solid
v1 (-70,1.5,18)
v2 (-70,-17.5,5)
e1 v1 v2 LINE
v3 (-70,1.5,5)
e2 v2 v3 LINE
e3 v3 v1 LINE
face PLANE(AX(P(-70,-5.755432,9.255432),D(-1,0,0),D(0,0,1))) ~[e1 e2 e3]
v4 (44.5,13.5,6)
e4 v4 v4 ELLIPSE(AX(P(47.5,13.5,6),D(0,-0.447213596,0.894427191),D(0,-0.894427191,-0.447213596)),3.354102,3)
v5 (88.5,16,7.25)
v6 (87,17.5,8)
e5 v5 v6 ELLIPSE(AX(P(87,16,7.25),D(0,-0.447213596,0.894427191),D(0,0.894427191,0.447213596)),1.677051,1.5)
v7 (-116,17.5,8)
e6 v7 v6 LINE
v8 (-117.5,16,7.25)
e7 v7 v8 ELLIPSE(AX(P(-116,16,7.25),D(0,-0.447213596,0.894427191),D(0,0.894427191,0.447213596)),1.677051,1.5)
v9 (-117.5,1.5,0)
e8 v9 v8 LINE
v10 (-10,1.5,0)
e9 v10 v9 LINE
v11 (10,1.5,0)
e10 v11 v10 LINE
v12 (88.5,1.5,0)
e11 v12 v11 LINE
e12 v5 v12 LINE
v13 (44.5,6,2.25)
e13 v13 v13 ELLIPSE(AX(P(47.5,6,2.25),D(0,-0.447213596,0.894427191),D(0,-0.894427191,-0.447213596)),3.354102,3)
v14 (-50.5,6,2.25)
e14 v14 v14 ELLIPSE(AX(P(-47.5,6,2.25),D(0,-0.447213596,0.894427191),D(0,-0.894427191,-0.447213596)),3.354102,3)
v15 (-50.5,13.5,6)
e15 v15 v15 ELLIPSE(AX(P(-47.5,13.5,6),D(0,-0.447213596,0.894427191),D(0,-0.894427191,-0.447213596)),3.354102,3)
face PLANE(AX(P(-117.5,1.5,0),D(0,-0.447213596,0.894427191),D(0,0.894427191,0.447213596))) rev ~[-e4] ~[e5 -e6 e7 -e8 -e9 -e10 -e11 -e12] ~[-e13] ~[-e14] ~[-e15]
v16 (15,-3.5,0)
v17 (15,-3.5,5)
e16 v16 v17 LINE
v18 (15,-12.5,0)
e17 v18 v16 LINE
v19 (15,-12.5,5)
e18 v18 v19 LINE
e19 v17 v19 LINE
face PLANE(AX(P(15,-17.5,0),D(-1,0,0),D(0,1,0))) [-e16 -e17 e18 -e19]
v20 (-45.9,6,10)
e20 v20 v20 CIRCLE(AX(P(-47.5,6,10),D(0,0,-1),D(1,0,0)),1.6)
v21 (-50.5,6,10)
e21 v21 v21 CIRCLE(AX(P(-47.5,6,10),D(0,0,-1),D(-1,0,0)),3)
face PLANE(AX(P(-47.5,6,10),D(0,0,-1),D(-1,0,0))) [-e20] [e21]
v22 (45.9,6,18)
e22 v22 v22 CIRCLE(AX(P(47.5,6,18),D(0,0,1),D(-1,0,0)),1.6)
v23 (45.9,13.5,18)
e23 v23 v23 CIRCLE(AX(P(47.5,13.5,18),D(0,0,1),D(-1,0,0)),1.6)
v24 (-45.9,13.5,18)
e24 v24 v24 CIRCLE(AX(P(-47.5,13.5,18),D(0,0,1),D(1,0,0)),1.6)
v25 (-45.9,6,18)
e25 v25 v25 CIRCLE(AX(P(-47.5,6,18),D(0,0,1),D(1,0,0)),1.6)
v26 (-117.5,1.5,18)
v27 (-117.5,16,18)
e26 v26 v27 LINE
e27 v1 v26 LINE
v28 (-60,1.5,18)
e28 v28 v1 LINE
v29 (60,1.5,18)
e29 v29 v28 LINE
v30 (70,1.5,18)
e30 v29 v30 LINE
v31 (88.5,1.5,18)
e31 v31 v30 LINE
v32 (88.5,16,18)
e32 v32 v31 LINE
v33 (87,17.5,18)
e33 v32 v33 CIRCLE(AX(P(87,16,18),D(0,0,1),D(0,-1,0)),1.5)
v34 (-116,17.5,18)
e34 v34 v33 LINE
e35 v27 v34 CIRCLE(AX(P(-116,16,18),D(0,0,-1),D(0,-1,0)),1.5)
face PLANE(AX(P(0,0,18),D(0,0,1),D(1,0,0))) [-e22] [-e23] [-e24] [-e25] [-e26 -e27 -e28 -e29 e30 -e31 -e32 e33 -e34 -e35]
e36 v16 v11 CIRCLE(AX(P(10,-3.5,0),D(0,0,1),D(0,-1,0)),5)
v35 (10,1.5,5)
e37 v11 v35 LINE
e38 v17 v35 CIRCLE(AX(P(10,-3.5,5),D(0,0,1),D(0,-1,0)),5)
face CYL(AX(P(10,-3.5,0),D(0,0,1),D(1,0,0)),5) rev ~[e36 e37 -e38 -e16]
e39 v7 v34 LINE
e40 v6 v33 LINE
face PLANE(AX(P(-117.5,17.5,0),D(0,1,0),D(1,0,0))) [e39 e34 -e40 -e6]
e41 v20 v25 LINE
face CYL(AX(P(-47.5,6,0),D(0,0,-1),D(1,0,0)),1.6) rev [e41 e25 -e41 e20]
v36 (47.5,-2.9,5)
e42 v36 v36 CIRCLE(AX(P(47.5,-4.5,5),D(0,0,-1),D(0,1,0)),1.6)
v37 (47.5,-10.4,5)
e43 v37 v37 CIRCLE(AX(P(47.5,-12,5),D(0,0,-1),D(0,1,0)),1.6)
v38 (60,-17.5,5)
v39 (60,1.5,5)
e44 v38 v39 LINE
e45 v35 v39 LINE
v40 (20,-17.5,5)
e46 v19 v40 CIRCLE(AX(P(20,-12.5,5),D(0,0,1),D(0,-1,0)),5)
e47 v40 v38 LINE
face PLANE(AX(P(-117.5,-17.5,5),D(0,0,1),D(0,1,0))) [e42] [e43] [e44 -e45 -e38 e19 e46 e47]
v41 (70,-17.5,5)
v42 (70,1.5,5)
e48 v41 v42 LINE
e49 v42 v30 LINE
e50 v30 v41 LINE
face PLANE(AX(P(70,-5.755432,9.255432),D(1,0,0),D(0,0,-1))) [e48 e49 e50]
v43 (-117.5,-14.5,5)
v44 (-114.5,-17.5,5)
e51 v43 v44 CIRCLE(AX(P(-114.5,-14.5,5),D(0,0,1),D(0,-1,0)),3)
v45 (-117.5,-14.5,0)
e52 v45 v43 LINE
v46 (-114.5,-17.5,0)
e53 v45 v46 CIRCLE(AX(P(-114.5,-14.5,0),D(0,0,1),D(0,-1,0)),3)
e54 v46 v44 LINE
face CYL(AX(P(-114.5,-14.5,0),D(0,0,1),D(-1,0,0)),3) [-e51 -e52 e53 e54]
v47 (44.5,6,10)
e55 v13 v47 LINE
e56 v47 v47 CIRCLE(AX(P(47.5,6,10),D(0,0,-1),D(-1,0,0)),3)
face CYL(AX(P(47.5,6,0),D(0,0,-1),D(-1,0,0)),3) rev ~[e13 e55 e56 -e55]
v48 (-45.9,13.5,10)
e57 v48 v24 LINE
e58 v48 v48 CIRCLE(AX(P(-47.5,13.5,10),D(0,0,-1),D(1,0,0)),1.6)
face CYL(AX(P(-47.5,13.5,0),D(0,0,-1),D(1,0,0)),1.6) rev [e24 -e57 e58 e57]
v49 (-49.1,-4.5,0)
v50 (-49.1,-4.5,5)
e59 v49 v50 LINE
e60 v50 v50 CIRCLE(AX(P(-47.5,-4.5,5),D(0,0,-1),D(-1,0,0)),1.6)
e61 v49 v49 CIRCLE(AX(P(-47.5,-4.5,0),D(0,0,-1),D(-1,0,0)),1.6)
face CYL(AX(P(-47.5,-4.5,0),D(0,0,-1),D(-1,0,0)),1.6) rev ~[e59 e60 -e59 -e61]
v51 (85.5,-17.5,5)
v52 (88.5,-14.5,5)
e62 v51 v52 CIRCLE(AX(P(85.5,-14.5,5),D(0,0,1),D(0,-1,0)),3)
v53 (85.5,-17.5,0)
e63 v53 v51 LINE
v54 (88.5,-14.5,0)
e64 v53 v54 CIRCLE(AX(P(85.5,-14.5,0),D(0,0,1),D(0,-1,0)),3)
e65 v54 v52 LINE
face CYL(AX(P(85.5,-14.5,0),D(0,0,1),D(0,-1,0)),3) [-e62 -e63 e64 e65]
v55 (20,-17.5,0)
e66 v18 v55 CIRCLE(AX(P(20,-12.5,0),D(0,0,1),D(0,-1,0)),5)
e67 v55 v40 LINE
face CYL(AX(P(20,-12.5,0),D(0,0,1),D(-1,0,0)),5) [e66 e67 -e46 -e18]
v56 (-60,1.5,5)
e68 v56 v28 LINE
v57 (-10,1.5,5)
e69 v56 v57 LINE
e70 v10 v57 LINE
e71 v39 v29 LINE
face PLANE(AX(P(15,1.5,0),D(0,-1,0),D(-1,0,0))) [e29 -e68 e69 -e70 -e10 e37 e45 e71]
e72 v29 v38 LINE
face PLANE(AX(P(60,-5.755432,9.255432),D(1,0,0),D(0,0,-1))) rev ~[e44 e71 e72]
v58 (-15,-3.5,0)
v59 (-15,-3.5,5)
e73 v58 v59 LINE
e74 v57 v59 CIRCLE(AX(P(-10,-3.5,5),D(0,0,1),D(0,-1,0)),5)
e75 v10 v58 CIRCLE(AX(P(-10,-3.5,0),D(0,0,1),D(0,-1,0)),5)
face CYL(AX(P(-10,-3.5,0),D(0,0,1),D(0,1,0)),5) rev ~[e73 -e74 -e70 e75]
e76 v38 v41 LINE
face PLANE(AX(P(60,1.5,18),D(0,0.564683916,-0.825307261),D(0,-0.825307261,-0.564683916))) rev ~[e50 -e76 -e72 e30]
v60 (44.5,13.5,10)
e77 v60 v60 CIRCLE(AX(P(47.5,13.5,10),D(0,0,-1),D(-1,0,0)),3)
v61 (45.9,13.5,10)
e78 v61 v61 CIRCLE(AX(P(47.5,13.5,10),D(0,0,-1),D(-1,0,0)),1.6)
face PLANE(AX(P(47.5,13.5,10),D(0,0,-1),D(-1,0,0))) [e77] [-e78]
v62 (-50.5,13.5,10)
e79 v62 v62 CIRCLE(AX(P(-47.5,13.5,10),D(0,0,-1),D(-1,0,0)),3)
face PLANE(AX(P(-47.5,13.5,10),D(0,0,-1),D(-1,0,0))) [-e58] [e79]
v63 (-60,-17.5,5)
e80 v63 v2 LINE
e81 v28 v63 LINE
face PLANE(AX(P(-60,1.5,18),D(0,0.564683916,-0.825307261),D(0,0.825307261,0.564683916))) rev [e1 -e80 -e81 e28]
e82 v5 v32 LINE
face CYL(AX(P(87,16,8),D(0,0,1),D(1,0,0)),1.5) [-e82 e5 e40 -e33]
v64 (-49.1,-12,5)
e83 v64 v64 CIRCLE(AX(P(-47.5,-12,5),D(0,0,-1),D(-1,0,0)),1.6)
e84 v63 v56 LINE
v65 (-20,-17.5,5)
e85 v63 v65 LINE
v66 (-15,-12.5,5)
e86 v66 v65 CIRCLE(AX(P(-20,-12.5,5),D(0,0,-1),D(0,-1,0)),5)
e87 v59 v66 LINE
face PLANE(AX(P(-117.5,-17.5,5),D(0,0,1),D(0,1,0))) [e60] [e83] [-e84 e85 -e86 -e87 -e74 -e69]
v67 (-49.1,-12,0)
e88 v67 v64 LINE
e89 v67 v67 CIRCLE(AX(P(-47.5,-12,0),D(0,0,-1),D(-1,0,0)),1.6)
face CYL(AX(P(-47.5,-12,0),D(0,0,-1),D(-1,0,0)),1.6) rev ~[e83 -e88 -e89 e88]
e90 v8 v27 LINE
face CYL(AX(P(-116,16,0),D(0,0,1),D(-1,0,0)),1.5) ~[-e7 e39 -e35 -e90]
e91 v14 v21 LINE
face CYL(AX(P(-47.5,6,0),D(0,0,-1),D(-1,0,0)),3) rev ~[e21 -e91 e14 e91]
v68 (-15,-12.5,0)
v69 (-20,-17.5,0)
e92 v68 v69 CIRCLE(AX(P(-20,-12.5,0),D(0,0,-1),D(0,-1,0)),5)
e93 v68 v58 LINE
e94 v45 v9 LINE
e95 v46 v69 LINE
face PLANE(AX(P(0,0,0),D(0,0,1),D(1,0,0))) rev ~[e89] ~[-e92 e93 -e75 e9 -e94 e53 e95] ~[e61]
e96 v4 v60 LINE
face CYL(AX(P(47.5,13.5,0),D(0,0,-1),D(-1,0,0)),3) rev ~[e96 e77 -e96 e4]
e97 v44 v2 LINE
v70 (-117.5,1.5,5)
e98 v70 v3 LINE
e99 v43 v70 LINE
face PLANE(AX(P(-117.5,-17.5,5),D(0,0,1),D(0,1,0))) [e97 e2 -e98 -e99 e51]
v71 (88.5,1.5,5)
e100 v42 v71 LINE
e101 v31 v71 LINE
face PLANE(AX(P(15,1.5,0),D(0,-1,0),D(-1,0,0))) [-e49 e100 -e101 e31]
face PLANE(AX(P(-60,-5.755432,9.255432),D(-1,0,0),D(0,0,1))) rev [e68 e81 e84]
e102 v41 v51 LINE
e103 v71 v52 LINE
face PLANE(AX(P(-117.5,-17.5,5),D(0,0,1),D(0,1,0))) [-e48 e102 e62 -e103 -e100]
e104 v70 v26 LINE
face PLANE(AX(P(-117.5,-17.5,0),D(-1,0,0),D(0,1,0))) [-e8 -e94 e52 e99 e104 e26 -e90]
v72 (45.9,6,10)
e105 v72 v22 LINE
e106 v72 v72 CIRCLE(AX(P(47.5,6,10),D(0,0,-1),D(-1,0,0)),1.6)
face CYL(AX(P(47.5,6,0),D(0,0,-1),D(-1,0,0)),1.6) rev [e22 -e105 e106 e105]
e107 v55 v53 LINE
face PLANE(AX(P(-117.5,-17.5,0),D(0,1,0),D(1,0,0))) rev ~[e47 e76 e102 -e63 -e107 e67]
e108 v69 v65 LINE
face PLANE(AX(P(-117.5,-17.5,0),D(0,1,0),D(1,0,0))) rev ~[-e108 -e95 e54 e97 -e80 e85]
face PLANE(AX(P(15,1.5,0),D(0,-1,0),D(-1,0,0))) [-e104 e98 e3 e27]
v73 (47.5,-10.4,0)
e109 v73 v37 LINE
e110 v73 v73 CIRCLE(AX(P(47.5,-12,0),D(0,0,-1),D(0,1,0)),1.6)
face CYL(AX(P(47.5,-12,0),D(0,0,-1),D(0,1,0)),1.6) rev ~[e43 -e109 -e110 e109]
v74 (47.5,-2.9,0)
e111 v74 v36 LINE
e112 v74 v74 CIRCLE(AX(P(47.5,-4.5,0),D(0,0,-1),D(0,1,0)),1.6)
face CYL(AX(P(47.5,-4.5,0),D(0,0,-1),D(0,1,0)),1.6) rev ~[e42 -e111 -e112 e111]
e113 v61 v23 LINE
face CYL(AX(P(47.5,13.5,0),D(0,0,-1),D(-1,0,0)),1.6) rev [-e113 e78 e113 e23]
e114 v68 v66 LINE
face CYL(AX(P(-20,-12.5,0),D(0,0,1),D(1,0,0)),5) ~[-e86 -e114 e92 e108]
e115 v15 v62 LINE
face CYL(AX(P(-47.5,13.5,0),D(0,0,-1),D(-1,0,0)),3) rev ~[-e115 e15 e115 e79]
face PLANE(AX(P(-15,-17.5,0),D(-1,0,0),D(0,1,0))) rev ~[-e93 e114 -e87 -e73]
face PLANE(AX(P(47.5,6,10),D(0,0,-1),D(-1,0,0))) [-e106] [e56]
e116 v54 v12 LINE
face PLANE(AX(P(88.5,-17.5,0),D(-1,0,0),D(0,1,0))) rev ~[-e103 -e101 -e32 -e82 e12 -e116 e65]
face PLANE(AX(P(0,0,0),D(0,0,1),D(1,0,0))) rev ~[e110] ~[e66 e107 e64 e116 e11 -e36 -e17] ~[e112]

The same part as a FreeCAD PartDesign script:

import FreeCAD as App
import Part
import Sketcher


def edges_at(feature, points):
    """Names of the edges that pass closest to the given points."""
    edges = feature.Shape.Edges
    near = lambda p: min(range(len(edges)), key=lambda i: edges[i].distToShape(Part.Vertex(*p))[0])
    return sorted({f"Edge{near(p) + 1}" for p in points})


def add_polygon(sketch, points):
    """Adds a closed chain of lines whose ends are joined by coincident constraints."""
    first, n = sketch.GeometryCount, len(points)
    for a, b in zip(points, points[1:] + points[:1]):
        sketch.addGeometry(Part.LineSegment(App.Vector(*a, 0), App.Vector(*b, 0)), False)
    for i in range(n):
        sketch.addConstraint(Sketcher.Constraint("Coincident", first + i, 2, first + (i + 1) % n, 1))

doc = App.newDocument("Part")
body = doc.addObject("PartDesign::Body", "Body")

# Sketch on XY plane
sketch1 = body.newObject("Sketcher::SketchObject", "Sketch")
sketch1.AttachmentSupport = (doc.getObject("XY_Plane"), [""])
sketch1.MapMode = "FlatFace"
add_polygon(sketch1, [(-117.5, 17.5), (-117.5, -17.5), (117.5, -17.5), (117.5, 17.5)])  # lines 0-3
sketch1.addGeometry(Part.Circle(App.Vector(-47.5, 6, 0), App.Vector(0, 0, 1), 1.6), False)  # 4
sketch1.addGeometry(Part.Circle(App.Vector(47.5, 6, 0), App.Vector(0, 0, 1), 1.6), False)  # 5
sketch1.addGeometry(Part.Circle(App.Vector(-47.5, 13.5, 0), App.Vector(0, 0, 1), 1.6), False)  # 6
sketch1.addGeometry(Part.Circle(App.Vector(47.5, 13.5, 0), App.Vector(0, 0, 1), 1.6), False)  # 7
sketch1.addConstraint([
    Sketcher.Constraint("Vertical", 0),
    Sketcher.Constraint("Horizontal", 1),
    Sketcher.Constraint("Vertical", 2),
    Sketcher.Constraint("Horizontal", 3),
    Sketcher.Constraint("Equal", 4, 5),
    Sketcher.Constraint("Equal", 5, 6),
    Sketcher.Constraint("Equal", 6, 7),
    Sketcher.Constraint("Symmetric", 0, 2, 2, 2, -1, 1),
    Sketcher.Constraint("Symmetric", 4, 3, 5, 3, -2),
    Sketcher.Constraint("Symmetric", 6, 3, 7, 3, -2),
    Sketcher.Constraint("Vertical", 4, 3, 6, 3),
    Sketcher.Constraint("Diameter", 4, 3.2),
    Sketcher.Constraint("DistanceX", 1, 1, 1, 2, 235.0),
    Sketcher.Constraint("DistanceY", 0, 2, 0, 1, 35.0),
    Sketcher.Constraint("DistanceY", -1, 1, 4, 3, 6.0),
    Sketcher.Constraint("DistanceX", 4, 3, 5, 3, 95.0),
    Sketcher.Constraint("DistanceY", 0, 2, 6, 3, 31.0),
])
pad1 = body.newObject("PartDesign::Pad", "Pad")
pad1.Profile = sketch1
pad1.Length = 18
doc.recompute()

fillet = body.newObject("PartDesign::Fillet", "Fillet")
fillet.Base = (pad1, edges_at(pad1, [(-117.5, 17.5, 9), (117.5, 17.5, 9)]))
fillet.Radius = 1.5

# Sketch on YZ plane
sketch2 = body.newObject("Sketcher::SketchObject", "Sketch001")
sketch2.AttachmentSupport = (doc.getObject("YZ_Plane"), [""])
sketch2.MapMode = "FlatFace"
sketch2.AttachmentOffset = App.Placement(App.Vector(0, 0, -117.5), App.Rotation())
add_polygon(sketch2, [(1.5, 0), (17.5, 8), (17.5, 0)])  # lines 0-2
sketch2.addConstraint([
    Sketcher.Constraint("Vertical", 1),
    Sketcher.Constraint("Horizontal", 2),
    Sketcher.Constraint("PointOnObject", 1, 2, -1),
    Sketcher.Constraint("DistanceX", 2, 2, 2, 1, 16.0),
    Sketcher.Constraint("DistanceY", 1, 2, 1, 1, 8.0),
    Sketcher.Constraint("DistanceX", -1, 1, 0, 2, 17.5),
])
pocket1 = body.newObject("PartDesign::Pocket", "Pocket")
pocket1.Profile = sketch2
pocket1.Type = "ThroughAll"
pocket1.Reversed = True

# Sketch on YZ plane
sketch3 = body.newObject("Sketcher::SketchObject", "Sketch002")
sketch3.AttachmentSupport = (doc.getObject("YZ_Plane"), [""])
sketch3.MapMode = "FlatFace"
sketch3.AttachmentOffset = App.Placement(App.Vector(0, 0, -117.5), App.Rotation())
add_polygon(sketch3, [(1.5, 5), (-17.5, 5), (-17.5, 18), (1.5, 18)])  # lines 0-3
sketch3.addConstraint([
    Sketcher.Constraint("Horizontal", 0),
    Sketcher.Constraint("Vertical", 1),
    Sketcher.Constraint("Horizontal", 2),
    Sketcher.Constraint("Vertical", 3),
    Sketcher.Constraint("DistanceX", 0, 2, 0, 1, 19.0),
    Sketcher.Constraint("DistanceY", 1, 1, 1, 2, 13.0),
    Sketcher.Constraint("DistanceY", -1, 1, 0, 2, 5.0),
    Sketcher.Constraint("DistanceX", 0, 2, -1, 1, 17.5),
])
pocket2 = body.newObject("PartDesign::Pocket", "Pocket001")
pocket2.Profile = sketch3
pocket2.Type = "ThroughAll"
pocket2.Reversed = True

# Sketch on XY plane
sketch4 = body.newObject("Sketcher::SketchObject", "Sketch003")
sketch4.AttachmentSupport = (doc.getObject("XY_Plane"), [""])
sketch4.MapMode = "FlatFace"
sketch4.addGeometry([
    Part.Circle(App.Vector(-47.5, -4.5, 0), App.Vector(0, 0, 1), 1.6),
    Part.Circle(App.Vector(-47.5, -12, 0), App.Vector(0, 0, 1), 1.6),
    Part.Circle(App.Vector(47.5, -12, 0), App.Vector(0, 0, 1), 1.6),
    Part.Circle(App.Vector(47.5, -4.5, 0), App.Vector(0, 0, 1), 1.6),
], False)
sketch4.addConstraint([
    Sketcher.Constraint("Equal", 0, 1),
    Sketcher.Constraint("Equal", 1, 2),
    Sketcher.Constraint("Equal", 2, 3),
    Sketcher.Constraint("Symmetric", 1, 3, 2, 3, -2),
    Sketcher.Constraint("Symmetric", 0, 3, 3, 3, -2),
    Sketcher.Constraint("Vertical", 0, 3, 1, 3),
    Sketcher.Constraint("Diameter", 0, 3.2),
    Sketcher.Constraint("DistanceY", 1, 3, -1, 1, 12.0),
    Sketcher.Constraint("DistanceX", 1, 3, 2, 3, 95.0),
    Sketcher.Constraint("DistanceY", 0, 3, -1, 1, 4.5),
])
pocket3 = body.newObject("PartDesign::Pocket", "Pocket002")
pocket3.Profile = sketch4
pocket3.Type = "ThroughAll"
pocket3.Reversed = True

# Sketch on XY plane
sketch5 = body.newObject("Sketcher::SketchObject", "Sketch004")
sketch5.AttachmentSupport = (doc.getObject("XY_Plane"), [""])
sketch5.MapMode = "FlatFace"
sketch5.addGeometry([
    Part.Circle(App.Vector(-47.5, 6, 0), App.Vector(0, 0, 1), 3),
    Part.Circle(App.Vector(-47.5, 13.5, 0), App.Vector(0, 0, 1), 3),
    Part.Circle(App.Vector(47.5, 6, 0), App.Vector(0, 0, 1), 3),
    Part.Circle(App.Vector(47.5, 13.5, 0), App.Vector(0, 0, 1), 3),
], False)
sketch5.addConstraint([
    Sketcher.Constraint("Equal", 0, 1),
    Sketcher.Constraint("Equal", 1, 2),
    Sketcher.Constraint("Equal", 2, 3),
    Sketcher.Constraint("Symmetric", 0, 3, 2, 3, -2),
    Sketcher.Constraint("Symmetric", 1, 3, 3, 3, -2),
    Sketcher.Constraint("Vertical", 0, 3, 1, 3),
    Sketcher.Constraint("Diameter", 0, 6.0),
    Sketcher.Constraint("DistanceY", -1, 1, 0, 3, 6.0),
    Sketcher.Constraint("DistanceX", 0, 3, 2, 3, 95.0),
    Sketcher.Constraint("DistanceY", -1, 1, 1, 3, 13.5),
])
pocket4 = body.newObject("PartDesign::Pocket", "Pocket003")
pocket4.Profile = sketch5
pocket4.Length = 10
pocket4.Reversed = True

# Sketch on XY plane
sketch6 = body.newObject("Sketcher::SketchObject", "Sketch005")
sketch6.AttachmentSupport = (doc.getObject("XY_Plane"), [""])
sketch6.MapMode = "FlatFace"
add_polygon(sketch6, [(117.5, 17.5), (117.5, -17.5), (88.5, -17.5), (88.5, 17.5)])  # lines 0-3
sketch6.addConstraint([
    Sketcher.Constraint("Vertical", 0),
    Sketcher.Constraint("Horizontal", 1),
    Sketcher.Constraint("Vertical", 2),
    Sketcher.Constraint("Horizontal", 3),
    Sketcher.Constraint("DistanceX", 1, 2, 1, 1, 29.0),
    Sketcher.Constraint("DistanceY", 0, 2, 0, 1, 35.0),
    Sketcher.Constraint("DistanceX", -1, 1, 0, 2, 117.5),
    Sketcher.Constraint("DistanceY", 0, 2, -1, 1, 17.5),
])
pocket5 = body.newObject("PartDesign::Pocket", "Pocket004")
pocket5.Profile = sketch6
pocket5.Length = 30
pocket5.Reversed = True
doc.recompute()

fillet2 = body.newObject("PartDesign::Fillet", "Fillet001")
fillet2.Base = (pocket5, edges_at(pocket5, [(88.5, -17.5, 2.5), (-117.5, -17.5, 2.5)]))
fillet2.Radius = 3
doc.recompute()

fillet3 = body.newObject("PartDesign::Fillet", "Fillet002")
fillet3.Base = (fillet2, edges_at(fillet2, [(88.5, 17.5, 13)]))
fillet3.Radius = 1.5

# Sketch on XY plane
sketch7 = body.newObject("Sketcher::SketchObject", "Sketch006")
sketch7.AttachmentSupport = (doc.getObject("XY_Plane"), [""])
sketch7.MapMode = "FlatFace"
add_polygon(sketch7, [(15, 1.5), (15, -17.5), (-15, -17.5), (-15, 1.5)])  # lines 0-3
sketch7.addConstraint([
    Sketcher.Constraint("Vertical", 0),
    Sketcher.Constraint("Horizontal", 1),
    Sketcher.Constraint("Vertical", 2),
    Sketcher.Constraint("Horizontal", 3),
    Sketcher.Constraint("DistanceX", 1, 2, 1, 1, 30.0),
    Sketcher.Constraint("DistanceY", 0, 2, 0, 1, 19.0),
    Sketcher.Constraint("DistanceX", -1, 1, 0, 2, 15.0),
    Sketcher.Constraint("DistanceY", 0, 2, -1, 1, 17.5),
])
pocket6 = body.newObject("PartDesign::Pocket", "Pocket005")
pocket6.Profile = sketch7
pocket6.Length = 30
pocket6.Reversed = True
doc.recompute()

fillet4 = body.newObject("PartDesign::Fillet", "Fillet003")
fillet4.Base = (pocket6, edges_at(pocket6, [
    (15, 1.5, 2.5),
    (-15, -17.5, 2.5),
    (15, -17.5, 2.5),
    (-15, 1.5, 2.5),
]))
fillet4.Radius = 5

# Sketch on YZ plane
sketch8 = body.newObject("Sketcher::SketchObject", "Sketch007")
sketch8.AttachmentSupport = (doc.getObject("YZ_Plane"), [""])
sketch8.MapMode = "FlatFace"
sketch8.AttachmentOffset = App.Placement(App.Vector(0, 0, 60), App.Rotation())
add_polygon(sketch8, [(1.5, 18), (-17.5, 5), (1.5, 5)])  # lines 0-2
sketch8.addConstraint([
    Sketcher.Constraint("Horizontal", 1),
    Sketcher.Constraint("Vertical", 2),
    Sketcher.Constraint("DistanceX", 1, 1, 1, 2, 19.0),
    Sketcher.Constraint("DistanceY", 2, 1, 2, 2, 13.0),
    Sketcher.Constraint("DistanceY", -1, 1, 0, 2, 5.0),
    Sketcher.Constraint("DistanceX", 0, 2, -1, 1, 17.5),
])
pad2 = body.newObject("PartDesign::Pad", "Pad001")
pad2.Profile = sketch8
pad2.Length = 10
doc.recompute()

mirrored = body.newObject("PartDesign::Mirrored", "Mirrored")
mirrored.Originals = [pad2]
mirrored.MirrorPlane = (doc.getObject("YZ_Plane"), [""])
body.Tip = mirrored

doc.recompute()
